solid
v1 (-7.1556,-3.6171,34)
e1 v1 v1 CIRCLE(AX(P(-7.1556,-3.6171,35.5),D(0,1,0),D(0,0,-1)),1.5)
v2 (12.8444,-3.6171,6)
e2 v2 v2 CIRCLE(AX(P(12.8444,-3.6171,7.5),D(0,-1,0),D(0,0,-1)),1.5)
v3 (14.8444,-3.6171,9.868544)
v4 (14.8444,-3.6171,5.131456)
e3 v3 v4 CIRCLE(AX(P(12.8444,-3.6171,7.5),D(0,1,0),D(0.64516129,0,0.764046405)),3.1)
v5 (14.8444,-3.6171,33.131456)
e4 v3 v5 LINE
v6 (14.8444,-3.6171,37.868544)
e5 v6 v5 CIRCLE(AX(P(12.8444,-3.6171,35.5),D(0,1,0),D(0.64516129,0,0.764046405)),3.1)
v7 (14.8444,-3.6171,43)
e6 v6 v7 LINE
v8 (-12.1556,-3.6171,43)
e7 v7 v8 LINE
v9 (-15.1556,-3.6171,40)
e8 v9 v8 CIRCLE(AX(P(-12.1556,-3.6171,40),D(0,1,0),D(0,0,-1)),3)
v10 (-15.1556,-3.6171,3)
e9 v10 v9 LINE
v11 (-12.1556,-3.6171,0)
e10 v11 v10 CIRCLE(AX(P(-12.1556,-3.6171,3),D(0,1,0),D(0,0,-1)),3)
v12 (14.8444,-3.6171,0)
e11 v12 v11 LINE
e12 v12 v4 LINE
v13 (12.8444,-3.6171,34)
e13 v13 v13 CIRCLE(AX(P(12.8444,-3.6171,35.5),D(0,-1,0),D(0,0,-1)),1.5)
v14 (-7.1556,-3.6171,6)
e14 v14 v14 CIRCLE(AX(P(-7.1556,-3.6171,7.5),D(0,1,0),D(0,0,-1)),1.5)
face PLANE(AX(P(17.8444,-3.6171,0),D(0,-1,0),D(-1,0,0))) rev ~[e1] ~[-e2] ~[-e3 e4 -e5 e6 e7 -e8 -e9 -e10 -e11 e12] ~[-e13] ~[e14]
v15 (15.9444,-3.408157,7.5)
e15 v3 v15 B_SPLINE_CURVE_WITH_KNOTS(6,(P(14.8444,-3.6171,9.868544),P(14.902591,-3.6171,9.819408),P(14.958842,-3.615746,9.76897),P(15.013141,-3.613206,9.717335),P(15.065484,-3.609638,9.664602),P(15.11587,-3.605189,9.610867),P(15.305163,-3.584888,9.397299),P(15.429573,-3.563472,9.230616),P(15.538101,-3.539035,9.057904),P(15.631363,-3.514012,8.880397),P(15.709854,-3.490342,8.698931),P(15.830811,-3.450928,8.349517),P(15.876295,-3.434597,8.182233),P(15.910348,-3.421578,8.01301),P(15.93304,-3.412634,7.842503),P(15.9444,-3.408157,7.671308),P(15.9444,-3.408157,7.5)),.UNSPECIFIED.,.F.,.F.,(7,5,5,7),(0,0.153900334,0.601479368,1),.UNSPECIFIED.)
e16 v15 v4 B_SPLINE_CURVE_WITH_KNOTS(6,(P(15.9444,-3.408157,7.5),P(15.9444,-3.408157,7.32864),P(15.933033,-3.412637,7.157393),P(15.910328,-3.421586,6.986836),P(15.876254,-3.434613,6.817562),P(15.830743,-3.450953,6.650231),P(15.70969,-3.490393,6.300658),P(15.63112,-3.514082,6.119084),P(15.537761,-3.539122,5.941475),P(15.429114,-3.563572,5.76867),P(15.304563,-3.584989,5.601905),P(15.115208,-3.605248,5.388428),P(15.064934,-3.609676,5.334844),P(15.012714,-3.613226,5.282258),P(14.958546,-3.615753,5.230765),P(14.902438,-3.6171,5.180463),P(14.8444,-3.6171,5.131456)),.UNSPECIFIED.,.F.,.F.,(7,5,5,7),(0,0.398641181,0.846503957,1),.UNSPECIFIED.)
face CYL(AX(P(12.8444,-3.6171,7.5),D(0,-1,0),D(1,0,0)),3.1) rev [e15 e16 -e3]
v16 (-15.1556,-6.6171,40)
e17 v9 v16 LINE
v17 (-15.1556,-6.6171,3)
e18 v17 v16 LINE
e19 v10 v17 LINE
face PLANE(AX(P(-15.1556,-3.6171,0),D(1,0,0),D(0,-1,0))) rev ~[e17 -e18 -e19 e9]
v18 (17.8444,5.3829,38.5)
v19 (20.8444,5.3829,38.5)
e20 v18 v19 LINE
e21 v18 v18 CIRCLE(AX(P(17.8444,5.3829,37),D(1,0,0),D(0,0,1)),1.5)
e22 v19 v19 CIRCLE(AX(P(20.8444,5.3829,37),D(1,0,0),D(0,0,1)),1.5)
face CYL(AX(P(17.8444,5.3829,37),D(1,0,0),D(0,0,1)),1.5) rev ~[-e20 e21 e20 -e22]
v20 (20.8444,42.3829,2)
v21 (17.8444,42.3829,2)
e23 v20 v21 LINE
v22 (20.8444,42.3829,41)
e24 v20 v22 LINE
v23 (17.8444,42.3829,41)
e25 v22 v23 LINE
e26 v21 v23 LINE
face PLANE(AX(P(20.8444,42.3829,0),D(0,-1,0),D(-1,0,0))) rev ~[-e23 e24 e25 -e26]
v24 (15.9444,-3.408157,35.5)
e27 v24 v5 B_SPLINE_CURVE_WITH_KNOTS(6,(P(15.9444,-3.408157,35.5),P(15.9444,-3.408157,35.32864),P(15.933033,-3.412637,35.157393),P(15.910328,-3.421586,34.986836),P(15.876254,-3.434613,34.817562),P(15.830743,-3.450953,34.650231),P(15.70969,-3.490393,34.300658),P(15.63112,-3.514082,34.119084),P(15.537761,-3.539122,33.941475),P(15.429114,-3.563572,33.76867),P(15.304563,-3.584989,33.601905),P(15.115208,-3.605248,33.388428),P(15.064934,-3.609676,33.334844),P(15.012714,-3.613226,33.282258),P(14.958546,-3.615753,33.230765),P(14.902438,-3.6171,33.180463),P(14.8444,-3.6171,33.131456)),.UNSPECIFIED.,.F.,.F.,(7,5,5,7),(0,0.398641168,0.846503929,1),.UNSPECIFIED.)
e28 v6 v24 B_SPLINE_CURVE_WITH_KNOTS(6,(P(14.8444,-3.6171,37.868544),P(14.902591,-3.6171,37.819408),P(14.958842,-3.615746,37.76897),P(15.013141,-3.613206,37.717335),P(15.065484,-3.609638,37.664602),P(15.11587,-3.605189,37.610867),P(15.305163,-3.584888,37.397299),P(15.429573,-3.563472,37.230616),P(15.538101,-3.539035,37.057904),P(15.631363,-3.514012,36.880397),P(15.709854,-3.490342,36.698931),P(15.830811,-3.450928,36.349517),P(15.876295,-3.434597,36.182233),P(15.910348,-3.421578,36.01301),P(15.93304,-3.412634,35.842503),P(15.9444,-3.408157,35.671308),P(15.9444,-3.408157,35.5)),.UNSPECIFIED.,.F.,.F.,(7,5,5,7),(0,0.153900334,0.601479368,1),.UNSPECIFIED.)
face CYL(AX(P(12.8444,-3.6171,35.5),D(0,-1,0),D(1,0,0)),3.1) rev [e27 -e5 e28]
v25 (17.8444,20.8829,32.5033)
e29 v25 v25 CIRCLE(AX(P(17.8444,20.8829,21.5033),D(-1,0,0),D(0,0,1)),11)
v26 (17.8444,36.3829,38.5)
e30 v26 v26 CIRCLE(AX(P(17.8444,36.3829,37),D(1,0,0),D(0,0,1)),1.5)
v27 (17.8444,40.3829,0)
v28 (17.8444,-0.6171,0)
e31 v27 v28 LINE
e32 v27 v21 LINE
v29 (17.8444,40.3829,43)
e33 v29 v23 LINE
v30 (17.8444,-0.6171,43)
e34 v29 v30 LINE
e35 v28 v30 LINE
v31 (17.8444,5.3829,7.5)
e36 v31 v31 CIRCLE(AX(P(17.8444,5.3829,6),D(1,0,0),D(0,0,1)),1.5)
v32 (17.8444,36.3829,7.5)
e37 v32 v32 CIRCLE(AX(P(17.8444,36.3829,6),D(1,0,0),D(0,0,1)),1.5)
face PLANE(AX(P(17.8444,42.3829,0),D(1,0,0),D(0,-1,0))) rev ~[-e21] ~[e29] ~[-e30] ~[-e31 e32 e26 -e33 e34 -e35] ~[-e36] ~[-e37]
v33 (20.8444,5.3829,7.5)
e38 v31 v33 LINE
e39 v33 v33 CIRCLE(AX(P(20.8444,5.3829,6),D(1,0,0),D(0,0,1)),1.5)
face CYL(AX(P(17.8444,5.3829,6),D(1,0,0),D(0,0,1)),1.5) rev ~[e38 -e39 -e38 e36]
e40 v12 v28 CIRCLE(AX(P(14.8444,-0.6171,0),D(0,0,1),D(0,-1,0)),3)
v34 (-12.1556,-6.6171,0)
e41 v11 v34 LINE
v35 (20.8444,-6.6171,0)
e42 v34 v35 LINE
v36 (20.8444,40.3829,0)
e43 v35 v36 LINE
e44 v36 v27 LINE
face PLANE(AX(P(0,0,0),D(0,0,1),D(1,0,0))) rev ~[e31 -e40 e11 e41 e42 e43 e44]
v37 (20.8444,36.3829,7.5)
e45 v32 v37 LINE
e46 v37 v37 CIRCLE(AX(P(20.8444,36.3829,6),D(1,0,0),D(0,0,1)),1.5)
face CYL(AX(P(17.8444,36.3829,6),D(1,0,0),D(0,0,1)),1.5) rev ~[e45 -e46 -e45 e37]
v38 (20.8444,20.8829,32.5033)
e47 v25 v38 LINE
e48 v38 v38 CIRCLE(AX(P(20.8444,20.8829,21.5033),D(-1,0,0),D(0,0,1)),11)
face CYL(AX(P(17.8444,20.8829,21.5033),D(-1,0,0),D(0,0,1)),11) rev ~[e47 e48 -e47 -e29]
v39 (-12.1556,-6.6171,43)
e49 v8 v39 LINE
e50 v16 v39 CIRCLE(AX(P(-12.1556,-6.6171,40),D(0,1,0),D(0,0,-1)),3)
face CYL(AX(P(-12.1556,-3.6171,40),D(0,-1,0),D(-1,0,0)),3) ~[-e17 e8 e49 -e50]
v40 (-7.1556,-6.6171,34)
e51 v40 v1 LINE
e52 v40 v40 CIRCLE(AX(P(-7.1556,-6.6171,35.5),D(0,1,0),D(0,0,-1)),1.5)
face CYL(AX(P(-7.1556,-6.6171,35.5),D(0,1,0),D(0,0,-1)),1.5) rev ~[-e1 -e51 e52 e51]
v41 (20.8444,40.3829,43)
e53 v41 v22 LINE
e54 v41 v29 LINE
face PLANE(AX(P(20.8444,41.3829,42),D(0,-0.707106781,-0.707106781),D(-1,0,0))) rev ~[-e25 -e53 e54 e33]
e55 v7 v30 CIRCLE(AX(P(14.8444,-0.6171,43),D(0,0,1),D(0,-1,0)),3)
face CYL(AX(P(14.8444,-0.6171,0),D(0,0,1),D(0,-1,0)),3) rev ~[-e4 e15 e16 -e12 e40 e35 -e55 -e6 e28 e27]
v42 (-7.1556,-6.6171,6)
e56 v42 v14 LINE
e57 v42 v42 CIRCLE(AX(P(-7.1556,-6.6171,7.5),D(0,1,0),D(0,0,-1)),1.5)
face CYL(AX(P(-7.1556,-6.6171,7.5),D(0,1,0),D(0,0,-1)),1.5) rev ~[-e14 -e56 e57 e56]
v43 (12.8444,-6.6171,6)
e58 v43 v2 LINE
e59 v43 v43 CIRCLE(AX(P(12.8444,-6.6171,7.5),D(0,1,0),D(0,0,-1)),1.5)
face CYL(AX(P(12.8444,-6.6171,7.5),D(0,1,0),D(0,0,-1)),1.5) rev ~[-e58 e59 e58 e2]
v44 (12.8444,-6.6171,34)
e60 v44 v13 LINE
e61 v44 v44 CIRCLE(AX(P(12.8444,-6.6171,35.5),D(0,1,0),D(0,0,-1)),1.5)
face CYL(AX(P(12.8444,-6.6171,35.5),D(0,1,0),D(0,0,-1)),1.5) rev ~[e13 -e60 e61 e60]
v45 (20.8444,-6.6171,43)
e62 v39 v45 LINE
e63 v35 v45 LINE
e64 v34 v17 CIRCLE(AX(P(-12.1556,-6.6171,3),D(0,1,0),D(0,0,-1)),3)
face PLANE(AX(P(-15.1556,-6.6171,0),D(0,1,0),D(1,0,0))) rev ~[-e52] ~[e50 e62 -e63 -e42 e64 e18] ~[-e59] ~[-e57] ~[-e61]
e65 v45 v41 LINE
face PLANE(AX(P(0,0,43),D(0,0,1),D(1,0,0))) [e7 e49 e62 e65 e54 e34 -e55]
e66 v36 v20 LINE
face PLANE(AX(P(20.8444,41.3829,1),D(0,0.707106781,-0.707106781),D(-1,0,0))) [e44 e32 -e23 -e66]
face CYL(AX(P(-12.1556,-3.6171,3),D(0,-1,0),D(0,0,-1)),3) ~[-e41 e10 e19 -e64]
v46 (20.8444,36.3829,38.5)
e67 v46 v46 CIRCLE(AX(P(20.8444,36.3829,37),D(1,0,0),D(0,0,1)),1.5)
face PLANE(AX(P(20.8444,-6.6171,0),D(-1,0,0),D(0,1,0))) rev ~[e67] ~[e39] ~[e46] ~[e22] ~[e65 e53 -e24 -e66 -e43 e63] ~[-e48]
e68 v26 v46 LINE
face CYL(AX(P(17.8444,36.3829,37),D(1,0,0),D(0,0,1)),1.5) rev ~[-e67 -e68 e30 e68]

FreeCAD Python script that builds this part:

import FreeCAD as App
import Part
import Sketcher

V = App.Vector
Q = App.Units.Quantity


def edges_at(feature, points):
    """Names of the edges that pass closest to the given points."""
    edges = feature.Shape.Edges
    near = lambda p: min(range(len(edges)), key=lambda i: edges[i].distToShape(Part.Vertex(*p))[0])
    return sorted({f"Edge{near(p) + 1}" for p in points})


def add_polygon(sketch, points):
    """Adds a closed chain of lines whose ends are joined by coincident constraints."""
    first, n = sketch.GeometryCount, len(points)
    for a, b in zip(points, points[1:] + points[:1]):
        sketch.addGeometry(Part.LineSegment(App.Vector(*a, 0), App.Vector(*b, 0)), False)
    for i in range(n):
        sketch.addConstraint(Sketcher.Constraint("Coincident", first + i, 2, first + (i + 1) % n, 1))

doc = App.newDocument("Part")
body = doc.addObject("PartDesign::Body", "Body")

# Sketch on XY plane
sketch1 = doc.addObject("Sketcher::SketchObject", "Sketch")
body.addObject(sketch1)
sketch1.AttachmentSupport = (doc.XY_Plane, [""])
sketch1.MapMode = "FlatFace"
add_polygon(sketch1, [(17.8, -3.6), (-15.2, -3.6), (-15.2, -6.6), (20.8, -6.6), (20.8, 42.4), (17.8, 42.4)])  # lines 0-5
sketch1.addConstraint([
    Sketcher.Constraint("Horizontal", 0),
    Sketcher.Constraint("Vertical", 1),
    Sketcher.Constraint("Horizontal", 2),
    Sketcher.Constraint("Vertical", 3),
    Sketcher.Constraint("Horizontal", 4),
    Sketcher.Constraint("Vertical", 5),
    Sketcher.Constraint("Equal", 4, 1),
    Sketcher.Constraint("DistanceX", 2, 1, 2, 2, Q("36 mm")),
    Sketcher.Constraint("DistanceX", 4, 2, 4, 1, Q("3 mm")),
    Sketcher.Constraint("DistanceY", 3, 1, 3, 2, Q("49 mm")),
    Sketcher.Constraint("DistanceY", 0, 2, -1, 1, Q("3.617 mm")),
    Sketcher.Constraint("DistanceX", 0, 2, -1, 1, Q("15.1556 mm")),
])
pad1 = doc.addObject("PartDesign::Pad", "Pad")
body.addObject(pad1)
pad1.Profile = sketch1
pad1.Length = 43
doc.recompute()

fillet = doc.addObject("PartDesign::Fillet", "Fillet")
body.addObject(fillet)
fillet.Base = (pad1, edges_at(pad1, [(17.844, -3.617, 21.5)]))
fillet.Radius = 3

# Sketch on YZ plane
sketch2 = doc.addObject("Sketcher::SketchObject", "Sketch001")
body.addObject(sketch2)
sketch2.AttachmentSupport = (doc.YZ_Plane, [""])
sketch2.MapMode = "FlatFace"
sketch2.AttachmentOffset = App.Placement(V(0, 0, 17.8444), App.Rotation())
sketch2.addGeometry(Part.Circle(V(21, 22, 0), V(0, 0, 1), 11), False)
sketch2.addConstraint([
    Sketcher.Constraint("Diameter", 0, Q("22 mm")),
    Sketcher.Constraint("DistanceX", -1, 1, 0, 3, Q("20.883 mm")),
    Sketcher.Constraint("DistanceY", -1, 1, 0, 3, Q("21.5033 mm")),
])
pocket1 = doc.addObject("PartDesign::Pocket", "Pocket")
body.addObject(pocket1)
pocket1.Profile = sketch2
pocket1.Length = 43
pocket1.Reversed = True

# Sketch on YZ plane
sketch3 = doc.addObject("Sketcher::SketchObject", "Sketch002")
body.addObject(sketch3)
sketch3.AttachmentSupport = (doc.YZ_Plane, [""])
sketch3.MapMode = "FlatFace"
sketch3.AttachmentOffset = App.Placement(V(0, 0, 17.8444), App.Rotation())
sketch3.addGeometry([
    Part.Circle(V(5.4, 6, 0), V(0, 0, 1), 1.5),
    Part.Circle(V(36.4, 6, 0), V(0, 0, 1), 1.5),
    Part.Circle(V(36.4, 37, 0), V(0, 0, 1), 1.5),
    Part.Circle(V(5.4, 37, 0), V(0, 0, 1), 1.5),
], False)
sketch3.addConstraint([
    Sketcher.Constraint("Equal", 0, 1),
    Sketcher.Constraint("Equal", 1, 2),
    Sketcher.Constraint("Equal", 2, 3),
    Sketcher.Constraint("Horizontal", 0, 3, 1, 3),
    Sketcher.Constraint("Horizontal", 2, 3, 3, 3),
    Sketcher.Constraint("Vertical", 1, 3, 2, 3),
    Sketcher.Constraint("Vertical", 0, 3, 3, 3),
    Sketcher.Constraint("Diameter", 0, Q("3 mm")),
    Sketcher.Constraint("DistanceY", -1, 1, 0, 3, Q("6 mm")),
    Sketcher.Constraint("DistanceY", -1, 1, 2, 3, Q("37 mm")),
    Sketcher.Constraint("DistanceX", 0, 3, 1, 3, Q("31 mm")),
    Sketcher.Constraint("DistanceX", -1, 1, 0, 3, Q("5.383 mm")),
])
doc.recompute()
hole = doc.addObject("PartDesign::Hole", "Hole")
body.addObject(hole)
hole.Profile = sketch3
hole.ThreadType = "None"
hole.Diameter = 3
hole.DepthType = "ThroughAll"
hole.Reversed = True
doc.recompute()

chamfer = doc.addObject("PartDesign::Chamfer", "Chamfer")
body.addObject(chamfer)
chamfer.Base = (hole, edges_at(hole, [(19.344, 42.383, 43), (19.344, 42.383, 0)]))
chamfer.Size = 2
doc.recompute()

fillet2 = doc.addObject("PartDesign::Fillet", "Fillet001")
body.addObject(fillet2)
fillet2.Base = (chamfer, edges_at(chamfer, [(-15.156, -5.117, 0), (-15.156, -5.117, 43)]))
fillet2.Radius = 3

# Sketch on XZ plane
sketch4 = doc.addObject("Sketcher::SketchObject", "Sketch003")
body.addObject(sketch4)
sketch4.AttachmentSupport = (doc.XZ_Plane, [""])
sketch4.MapMode = "FlatFace"
sketch4.AttachmentOffset = App.Placement(V(0, 0, 6.6171), App.Rotation())
sketch4.addGeometry([
    Part.Circle(V(-7.2, 7.5, 0), V(0, 0, 1), 1.5),
    Part.Circle(V(12.8, 7.5, 0), V(0, 0, 1), 1.5),
    Part.Circle(V(-7.2, 35.5, 0), V(0, 0, 1), 1.5),
    Part.Circle(V(12.8, 35.5, 0), V(0, 0, 1), 1.5),
], False)
sketch4.addConstraint([
    Sketcher.Constraint("Equal", 0, 1),
    Sketcher.Constraint("Equal", 1, 2),
    Sketcher.Constraint("Equal", 2, 3),
    Sketcher.Constraint("Horizontal", 0, 3, 1, 3),
    Sketcher.Constraint("Horizontal", 2, 3, 3, 3),
    Sketcher.Constraint("Vertical", 0, 3, 2, 3),
    Sketcher.Constraint("Vertical", 1, 3, 3, 3),
    Sketcher.Constraint("Diameter", 0, Q("3 mm")),
    Sketcher.Constraint("DistanceX", 0, 3, 1, 3, Q("20 mm")),
    Sketcher.Constraint("DistanceY", 0, 3, 2, 3, Q("28 mm")),
    Sketcher.Constraint("DistanceY", -1, 1, 0, 3, Q("7.5 mm")),
    Sketcher.Constraint("DistanceX", 0, 3, -1, 1, Q("7.1556 mm")),
])
doc.recompute()
hole2 = doc.addObject("PartDesign::Hole", "Hole001")
body.addObject(hole2)
hole2.Profile = sketch4
hole2.ThreadType = "None"
hole2.Diameter = 3
hole2.DepthType = "ThroughAll"

# Sketch on XZ plane
sketch5 = doc.addObject("Sketcher::SketchObject", "Sketch004")
body.addObject(sketch5)
sketch5.AttachmentSupport = (doc.XZ_Plane, [""])
sketch5.MapMode = "FlatFace"
sketch5.AttachmentOffset = App.Placement(V(0, 0, 3.6171), App.Rotation())
sketch5.addGeometry([
    Part.Circle(V(12.8, 35.5, 0), V(0, 0, 1), 3.1),
    Part.Circle(V(12.8, 35.5, 0), V(0, 0, 1), 1.5),
    Part.Circle(V(12.8, 7.5, 0), V(0, 0, 1), 3.1),
    Part.Circle(V(12.8, 7.5, 0), V(0, 0, 1), 1.5),
], False)
sketch5.addConstraint([
    Sketcher.Constraint("Coincident", 1, 3, 0, 3),
    Sketcher.Constraint("Coincident", 3, 3, 2, 3),
    Sketcher.Constraint("Equal", 0, 2),
    Sketcher.Constraint("Equal", 1, 3),
    Sketcher.Constraint("Vertical", 1, 3, 2, 3),
    Sketcher.Constraint("Diameter", 0, Q("6.2 mm")),
    Sketcher.Constraint("Diameter", 1, Q("3 mm")),
    Sketcher.Constraint("DistanceY", 2, 3, 0, 3, Q("28 mm")),
    Sketcher.Constraint("DistanceY", -1, 1, 0, 3, Q("35.5 mm")),
    Sketcher.Constraint("DistanceX", -1, 1, 0, 3, Q("12.8444 mm")),
])
pocket2 = doc.addObject("PartDesign::Pocket", "Pocket001")
body.addObject(pocket2)
pocket2.Profile = sketch5
pocket2.Length = 2

doc.recompute()
